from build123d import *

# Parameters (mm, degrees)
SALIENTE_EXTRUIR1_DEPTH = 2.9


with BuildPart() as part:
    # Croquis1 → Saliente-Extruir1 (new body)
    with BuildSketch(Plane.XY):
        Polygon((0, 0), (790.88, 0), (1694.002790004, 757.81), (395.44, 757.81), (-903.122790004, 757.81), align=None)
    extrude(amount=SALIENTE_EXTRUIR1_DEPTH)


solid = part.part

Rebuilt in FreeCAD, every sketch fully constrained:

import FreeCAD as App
import Part
import Sketcher

V = App.Vector
Q = App.Units.Quantity

doc = App.newDocument("Part")
body = doc.addObject("PartDesign::Body", "Body")

sketch1 = doc.addObject("Sketcher::SketchObject", "Sketch")
body.addObject(sketch1)
sketch1.AttachmentSupport = (doc.XY_Plane, [""])
sketch1.MapMode = "FlatFace"
sketch1.addGeometry([
    Part.LineSegment(V(0, 0, 0), V(791, 0, 0)),
    Part.LineSegment(V(791, 0, 0), V(1694, 758, 0)),
    Part.LineSegment(V(1694, 758, 0), V(-903, 758, 0)),
    Part.LineSegment(V(-903, 758, 0), V(0, 0, 0)),
], False)
sketch1.addConstraint([
    Sketcher.Constraint("Coincident", 0, 2, 1, 1),
    Sketcher.Constraint("Coincident", 1, 2, 2, 1),
    Sketcher.Constraint("Coincident", 2, 2, 3, 1),
    Sketcher.Constraint("Coincident", 3, 2, 0, 1),
    Sketcher.Constraint("Horizontal", 0),
    Sketcher.Constraint("Horizontal", 2),
    Sketcher.Constraint("Coincident", 3, 2, -1, 1),
    Sketcher.Constraint("Equal", 1, 3),
    Sketcher.Constraint("Angle", 1, Q("40 deg")),
    Sketcher.Constraint("DistanceX", 0, 1, 0, 2, Q("790.88 mm")),
    Sketcher.Constraint("DistanceY", -1, 1, 1, 2, Q("757.81 mm")),
])
pad1 = doc.addObject("PartDesign::Pad", "Pad")
body.addObject(pad1)
pad1.Profile = sketch1
pad1.Length = 2.9

doc.recompute()
